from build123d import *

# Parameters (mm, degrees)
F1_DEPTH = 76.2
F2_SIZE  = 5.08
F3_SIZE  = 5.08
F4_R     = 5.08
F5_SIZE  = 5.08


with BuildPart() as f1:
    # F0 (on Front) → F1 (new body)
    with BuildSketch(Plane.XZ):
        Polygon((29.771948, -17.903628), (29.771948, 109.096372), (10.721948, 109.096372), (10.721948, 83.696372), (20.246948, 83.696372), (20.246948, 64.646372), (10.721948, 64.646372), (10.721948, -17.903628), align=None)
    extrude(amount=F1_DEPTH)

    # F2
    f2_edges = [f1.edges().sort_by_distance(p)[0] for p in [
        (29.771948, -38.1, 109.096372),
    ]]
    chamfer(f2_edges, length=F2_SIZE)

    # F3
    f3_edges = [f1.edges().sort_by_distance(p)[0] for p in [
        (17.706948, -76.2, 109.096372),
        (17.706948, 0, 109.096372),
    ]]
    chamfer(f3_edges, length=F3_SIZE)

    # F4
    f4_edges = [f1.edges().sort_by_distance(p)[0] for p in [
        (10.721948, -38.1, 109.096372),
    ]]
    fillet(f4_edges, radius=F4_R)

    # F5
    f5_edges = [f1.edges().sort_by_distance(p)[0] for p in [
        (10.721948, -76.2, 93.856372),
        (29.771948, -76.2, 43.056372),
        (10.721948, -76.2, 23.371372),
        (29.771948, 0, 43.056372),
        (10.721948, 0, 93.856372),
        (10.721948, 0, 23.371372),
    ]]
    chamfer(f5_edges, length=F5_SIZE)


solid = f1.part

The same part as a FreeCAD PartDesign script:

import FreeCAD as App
import Part
import Sketcher

V = App.Vector
Q = App.Units.Quantity


def edges_at(feature, points):
    """Names of the edges that pass closest to the given points."""
    edges = feature.Shape.Edges
    near = lambda p: min(range(len(edges)), key=lambda i: edges[i].distToShape(Part.Vertex(*p))[0])
    return sorted({f"Edge{near(p) + 1}" for p in points})

doc = App.newDocument("Part")
body = doc.addObject("PartDesign::Body", "Body")

sketch1 = body.newObject("Sketcher::SketchObject", "Sketch")
sketch1.AttachmentSupport = (doc.getObject("XZ_Plane"), [""])
sketch1.MapMode = "FlatFace"
sketch1.addGeometry([
    Part.LineSegment(V(30, -18, 0), V(30, 109, 0)),
    Part.LineSegment(V(30, 109, 0), V(11, 109, 0)),
    Part.LineSegment(V(11, 109, 0), V(11, 84, 0)),
    Part.LineSegment(V(11, 84, 0), V(20, 84, 0)),
    Part.LineSegment(V(20, 84, 0), V(20, 65, 0)),
    Part.LineSegment(V(20, 65, 0), V(11, 65, 0)),
    Part.LineSegment(V(11, 65, 0), V(11, -18, 0)),
    Part.LineSegment(V(11, -18, 0), V(30, -18, 0)),
], False)
sketch1.addConstraint([
    Sketcher.Constraint("Coincident", 0, 2, 1, 1),
    Sketcher.Constraint("Coincident", 1, 2, 2, 1),
    Sketcher.Constraint("Coincident", 2, 2, 3, 1),
    Sketcher.Constraint("Coincident", 3, 2, 4, 1),
    Sketcher.Constraint("Coincident", 4, 2, 5, 1),
    Sketcher.Constraint("Coincident", 5, 2, 6, 1),
    Sketcher.Constraint("Coincident", 6, 2, 7, 1),
    Sketcher.Constraint("Coincident", 7, 2, 0, 1),
    Sketcher.Constraint("Vertical", 0),
    Sketcher.Constraint("Horizontal", 1),
    Sketcher.Constraint("Vertical", 2),
    Sketcher.Constraint("Horizontal", 3),
    Sketcher.Constraint("Vertical", 4),
    Sketcher.Constraint("Horizontal", 5),
    Sketcher.Constraint("Vertical", 6),
    Sketcher.Constraint("Horizontal", 7),
    Sketcher.Constraint("Vertical", 2, 2, 5, 2),
    Sketcher.Constraint("Equal", 7, 4),
    Sketcher.Constraint("DistanceY", 0, 1, 0, 2, Q("5 in")),
    Sketcher.Constraint("DistanceY", 2, 2, 2, 1, Q("1 in")),
    Sketcher.Constraint("DistanceX", 1, 2, 1, 1, Q("0.75 in")),
    Sketcher.Constraint("DistanceX", 3, 1, 3, 2, Q("0.375 in")),
    Sketcher.Constraint("DistanceY", -1, 1, 2, 2, 83.696372),
    Sketcher.Constraint("DistanceX", -1, 1, 3, 2, 20.246948),
])
pad1 = body.newObject("PartDesign::Pad", "Pad")
pad1.Profile = sketch1
pad1.Length = Q("3 in")
doc.recompute()

chamfer = body.newObject("PartDesign::Chamfer", "Chamfer")
chamfer.Base = (pad1, edges_at(pad1, [(29.772, -38.1, 109.096)]))
chamfer.Size = Q("0.2 in")
doc.recompute()

chamfer2 = body.newObject("PartDesign::Chamfer", "Chamfer001")
chamfer2.Base = (chamfer, edges_at(chamfer, [(17.707, -76.2, 109.096), (17.707, 0, 109.096)]))
chamfer2.Size = Q("0.2 in")
doc.recompute()

fillet = body.newObject("PartDesign::Fillet", "Fillet")
fillet.Base = (chamfer2, edges_at(chamfer2, [(10.722, -38.1, 109.096)]))
fillet.Radius = Q("0.2 in")
doc.recompute()

chamfer3 = body.newObject("PartDesign::Chamfer", "Chamfer002")
chamfer3.Base = (fillet, edges_at(fillet, [
    (10.722, -76.2, 93.856),
    (29.772, -76.2, 43.056),
    (10.722, -76.2, 23.371),
    (29.772, 0, 43.056),
    (10.722, 0, 93.856),
    (10.722, 0, 23.371),
]))
chamfer3.Size = Q("0.2 in")

doc.recompute()
